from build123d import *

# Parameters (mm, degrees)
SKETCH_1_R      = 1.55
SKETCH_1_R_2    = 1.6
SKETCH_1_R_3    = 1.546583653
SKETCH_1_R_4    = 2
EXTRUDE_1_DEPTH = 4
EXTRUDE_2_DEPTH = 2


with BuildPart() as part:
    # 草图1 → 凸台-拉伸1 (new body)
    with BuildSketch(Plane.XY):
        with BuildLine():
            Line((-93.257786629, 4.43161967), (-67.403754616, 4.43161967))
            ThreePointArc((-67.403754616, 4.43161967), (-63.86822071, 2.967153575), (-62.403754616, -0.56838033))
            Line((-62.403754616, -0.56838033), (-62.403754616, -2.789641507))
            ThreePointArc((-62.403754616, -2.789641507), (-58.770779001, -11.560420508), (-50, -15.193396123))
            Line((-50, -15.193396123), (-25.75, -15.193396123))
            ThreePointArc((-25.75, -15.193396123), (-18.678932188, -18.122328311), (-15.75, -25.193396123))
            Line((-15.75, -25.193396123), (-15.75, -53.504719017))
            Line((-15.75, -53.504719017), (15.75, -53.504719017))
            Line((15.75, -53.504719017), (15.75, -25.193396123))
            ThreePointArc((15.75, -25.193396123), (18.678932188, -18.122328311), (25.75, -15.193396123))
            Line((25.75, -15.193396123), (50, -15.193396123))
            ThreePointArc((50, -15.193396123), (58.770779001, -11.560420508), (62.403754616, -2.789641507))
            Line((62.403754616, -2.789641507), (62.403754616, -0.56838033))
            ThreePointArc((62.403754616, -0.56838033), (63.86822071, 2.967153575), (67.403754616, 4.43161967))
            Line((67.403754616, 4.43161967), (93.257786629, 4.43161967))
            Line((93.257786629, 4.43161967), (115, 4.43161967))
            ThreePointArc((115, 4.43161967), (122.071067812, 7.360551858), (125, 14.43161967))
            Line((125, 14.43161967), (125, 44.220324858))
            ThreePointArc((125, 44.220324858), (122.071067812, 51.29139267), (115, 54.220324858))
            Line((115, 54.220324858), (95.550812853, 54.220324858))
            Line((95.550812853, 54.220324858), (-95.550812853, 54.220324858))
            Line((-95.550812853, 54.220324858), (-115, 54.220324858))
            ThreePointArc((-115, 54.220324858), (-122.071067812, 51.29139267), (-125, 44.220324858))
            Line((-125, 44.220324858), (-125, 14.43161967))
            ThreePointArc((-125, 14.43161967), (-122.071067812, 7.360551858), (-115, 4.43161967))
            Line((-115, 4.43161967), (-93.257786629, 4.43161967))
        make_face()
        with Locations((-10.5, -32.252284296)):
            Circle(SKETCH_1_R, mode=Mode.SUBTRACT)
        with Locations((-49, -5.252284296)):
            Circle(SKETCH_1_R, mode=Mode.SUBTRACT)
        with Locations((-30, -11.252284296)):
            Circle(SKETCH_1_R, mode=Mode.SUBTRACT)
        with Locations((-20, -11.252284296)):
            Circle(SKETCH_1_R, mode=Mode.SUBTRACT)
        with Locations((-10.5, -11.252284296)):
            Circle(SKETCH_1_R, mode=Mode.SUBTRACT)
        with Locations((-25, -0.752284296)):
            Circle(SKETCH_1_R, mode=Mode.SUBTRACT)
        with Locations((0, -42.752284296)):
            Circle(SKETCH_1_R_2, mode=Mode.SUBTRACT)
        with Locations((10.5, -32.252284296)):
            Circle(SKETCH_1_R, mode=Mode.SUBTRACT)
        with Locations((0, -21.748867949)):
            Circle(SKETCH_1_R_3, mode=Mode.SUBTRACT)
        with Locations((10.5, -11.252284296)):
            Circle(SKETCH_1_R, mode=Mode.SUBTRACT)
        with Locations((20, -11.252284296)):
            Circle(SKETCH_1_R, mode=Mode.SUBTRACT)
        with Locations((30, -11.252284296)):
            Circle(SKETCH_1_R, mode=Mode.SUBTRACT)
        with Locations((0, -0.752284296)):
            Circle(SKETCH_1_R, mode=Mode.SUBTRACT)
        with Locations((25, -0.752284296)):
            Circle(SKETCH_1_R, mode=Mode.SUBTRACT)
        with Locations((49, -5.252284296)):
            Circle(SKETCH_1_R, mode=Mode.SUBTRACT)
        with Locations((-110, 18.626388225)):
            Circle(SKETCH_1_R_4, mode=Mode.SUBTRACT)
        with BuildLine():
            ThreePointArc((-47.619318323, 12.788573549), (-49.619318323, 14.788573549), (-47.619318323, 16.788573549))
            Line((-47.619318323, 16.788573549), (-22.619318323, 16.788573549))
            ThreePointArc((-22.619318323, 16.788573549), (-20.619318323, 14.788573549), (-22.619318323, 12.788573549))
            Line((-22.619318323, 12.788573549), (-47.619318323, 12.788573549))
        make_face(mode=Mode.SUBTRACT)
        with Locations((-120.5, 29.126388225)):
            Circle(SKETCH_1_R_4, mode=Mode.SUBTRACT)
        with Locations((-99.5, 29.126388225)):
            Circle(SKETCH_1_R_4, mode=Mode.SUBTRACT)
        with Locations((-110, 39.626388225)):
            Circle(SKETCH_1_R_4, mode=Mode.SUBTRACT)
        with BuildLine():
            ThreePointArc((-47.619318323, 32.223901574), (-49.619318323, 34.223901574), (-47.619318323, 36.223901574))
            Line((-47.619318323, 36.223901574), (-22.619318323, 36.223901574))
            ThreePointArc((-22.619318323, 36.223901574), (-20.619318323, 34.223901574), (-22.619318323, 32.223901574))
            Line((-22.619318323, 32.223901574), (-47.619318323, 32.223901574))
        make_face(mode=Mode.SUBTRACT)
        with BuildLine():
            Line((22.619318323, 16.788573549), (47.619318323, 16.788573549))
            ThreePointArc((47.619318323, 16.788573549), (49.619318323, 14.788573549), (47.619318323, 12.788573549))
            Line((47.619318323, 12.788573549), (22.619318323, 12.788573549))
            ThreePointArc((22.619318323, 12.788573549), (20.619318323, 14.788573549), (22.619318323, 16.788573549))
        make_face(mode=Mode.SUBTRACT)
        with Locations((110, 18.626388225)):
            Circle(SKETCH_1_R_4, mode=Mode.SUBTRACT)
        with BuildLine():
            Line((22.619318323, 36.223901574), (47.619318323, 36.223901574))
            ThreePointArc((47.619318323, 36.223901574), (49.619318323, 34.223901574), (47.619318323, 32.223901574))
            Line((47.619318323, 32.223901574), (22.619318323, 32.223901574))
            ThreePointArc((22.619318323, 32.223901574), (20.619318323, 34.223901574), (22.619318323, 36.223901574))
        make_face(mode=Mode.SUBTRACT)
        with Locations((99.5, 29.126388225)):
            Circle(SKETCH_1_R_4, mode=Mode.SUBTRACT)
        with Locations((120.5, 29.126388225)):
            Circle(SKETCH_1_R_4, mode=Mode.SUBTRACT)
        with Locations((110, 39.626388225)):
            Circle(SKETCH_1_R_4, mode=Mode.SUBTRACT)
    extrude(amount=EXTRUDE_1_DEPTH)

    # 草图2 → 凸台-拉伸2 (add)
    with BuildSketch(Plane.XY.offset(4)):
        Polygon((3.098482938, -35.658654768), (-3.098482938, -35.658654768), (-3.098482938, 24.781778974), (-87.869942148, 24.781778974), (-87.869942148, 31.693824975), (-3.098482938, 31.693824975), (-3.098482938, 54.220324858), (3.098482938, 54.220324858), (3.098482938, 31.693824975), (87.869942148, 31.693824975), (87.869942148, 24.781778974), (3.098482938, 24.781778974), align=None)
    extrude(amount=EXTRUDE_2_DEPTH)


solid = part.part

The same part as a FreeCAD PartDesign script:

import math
import FreeCAD as App
import Part
import Sketcher


def add_polygon(sketch, points):
    """Adds a closed chain of lines whose ends are joined by coincident constraints."""
    first, n = sketch.GeometryCount, len(points)
    for a, b in zip(points, points[1:] + points[:1]):
        sketch.addGeometry(Part.LineSegment(App.Vector(*a, 0), App.Vector(*b, 0)), False)
    for i in range(n):
        sketch.addConstraint(Sketcher.Constraint("Coincident", first + i, 2, first + (i + 1) % n, 1))

doc = App.newDocument("Part")
body = doc.addObject("PartDesign::Body", "Body")

# Sketch on XY plane
sketch1 = body.newObject("Sketcher::SketchObject", "Sketch")
sketch1.AttachmentSupport = (doc.getObject("XY_Plane"), [""])
sketch1.MapMode = "FlatFace"
sketch1.addGeometry([
    Part.ArcOfCircle(Part.Circle(App.Vector(-67.4, -0.6, 0), App.Vector(0, 0, 1), 5), math.radians(0), math.radians(90)),  # 0
    Part.LineSegment(App.Vector(-62.4, -0.6, 0), App.Vector(-62.4, -2.8, 0)),  # 1
    Part.ArcOfCircle(Part.Circle(App.Vector(-50, -2.8, 0), App.Vector(0, 0, 1), 12.4), math.radians(-180), math.radians(-90)),  # 2
    Part.LineSegment(App.Vector(-50, -15.2, 0), App.Vector(-25.8, -15.2, 0)),  # 3
    Part.ArcOfCircle(Part.Circle(App.Vector(-25.8, -25.2, 0), App.Vector(0, 0, 1), 10), math.radians(0), math.radians(90)),  # 4
    Part.LineSegment(App.Vector(-15.8, -25.2, 0), App.Vector(-15.8, -53.5, 0)),  # 5
    Part.LineSegment(App.Vector(-15.8, -53.5, 0), App.Vector(15.8, -53.5, 0)),  # 6
    Part.LineSegment(App.Vector(15.8, -53.5, 0), App.Vector(15.8, -25.2, 0)),  # 7
    Part.ArcOfCircle(Part.Circle(App.Vector(25.8, -25.2, 0), App.Vector(0, 0, 1), 10), math.radians(90), math.radians(180)),  # 8
    Part.LineSegment(App.Vector(25.8, -15.2, 0), App.Vector(50, -15.2, 0)),  # 9
    Part.ArcOfCircle(Part.Circle(App.Vector(50, -2.8, 0), App.Vector(0, 0, 1), 12.4), math.radians(-90), math.radians(0)),  # 10
    Part.LineSegment(App.Vector(62.4, -2.8, 0), App.Vector(62.4, -0.6, 0)),  # 11
    Part.ArcOfCircle(Part.Circle(App.Vector(67.4, -0.6, 0), App.Vector(0, 0, 1), 5), math.radians(90), math.radians(180)),  # 12
    Part.LineSegment(App.Vector(67.4, 4.4, 0), App.Vector(115, 4.4, 0)),  # 13
    Part.ArcOfCircle(Part.Circle(App.Vector(115, 14.4, 0), App.Vector(0, 0, 1), 10), math.radians(-90), math.radians(0)),  # 14
    Part.LineSegment(App.Vector(125, 14.4, 0), App.Vector(125, 44.2, 0)),  # 15
    Part.ArcOfCircle(Part.Circle(App.Vector(115, 44.2, 0), App.Vector(0, 0, 1), 10), math.radians(0), math.radians(90)),  # 16
    Part.LineSegment(App.Vector(115, 54.2, 0), App.Vector(-115, 54.2, 0)),  # 17
    Part.ArcOfCircle(Part.Circle(App.Vector(-115, 44.2, 0), App.Vector(0, 0, 1), 10), math.radians(90), math.radians(180)),  # 18
    Part.LineSegment(App.Vector(-125, 44.2, 0), App.Vector(-125, 14.4, 0)),  # 19
    Part.ArcOfCircle(Part.Circle(App.Vector(-115, 14.4, 0), App.Vector(0, 0, 1), 10), math.radians(180), math.radians(270)),  # 20
    Part.LineSegment(App.Vector(-115, 4.4, 0), App.Vector(-67.4, 4.4, 0)),  # 21
    Part.Circle(App.Vector(-10.5, -32.3, 0), App.Vector(0, 0, 1), 1.6),  # 22
    Part.Circle(App.Vector(-49, -5.3, 0), App.Vector(0, 0, 1), 1.6),  # 23
    Part.Circle(App.Vector(-30, -11.3, 0), App.Vector(0, 0, 1), 1.6),  # 24
    Part.Circle(App.Vector(-20, -11.3, 0), App.Vector(0, 0, 1), 1.6),  # 25
    Part.Circle(App.Vector(-10.5, -11.3, 0), App.Vector(0, 0, 1), 1.6),  # 26
    Part.Circle(App.Vector(0, -42.8, 0), App.Vector(0, 0, 1), 1.6),  # 27
    Part.Circle(App.Vector(10.5, -32.3, 0), App.Vector(0, 0, 1), 1.6),  # 28
    Part.Circle(App.Vector(0, -21.7, 0), App.Vector(0, 0, 1), 1.5),  # 29
    Part.Circle(App.Vector(10.5, -11.3, 0), App.Vector(0, 0, 1), 1.6),  # 30
    Part.Circle(App.Vector(20, -11.3, 0), App.Vector(0, 0, 1), 1.6),  # 31
    Part.Circle(App.Vector(30, -11.3, 0), App.Vector(0, 0, 1), 1.6),  # 32
    Part.Circle(App.Vector(49, -5.3, 0), App.Vector(0, 0, 1), 1.6),  # 33
    Part.Circle(App.Vector(-110, 18.6, 0), App.Vector(0, 0, 1), 2),  # 34
    Part.Circle(App.Vector(-25, -0.8, 0), App.Vector(0, 0, 1), 1.6),  # 35
    Part.LineSegment(App.Vector(-22.6, 12.8, 0), App.Vector(-47.6, 12.8, 0)),  # 36
    Part.ArcOfCircle(Part.Circle(App.Vector(-47.6, 14.8, 0), App.Vector(0, 0, 1), 2), math.radians(90), math.radians(270)),  # 37
    Part.LineSegment(App.Vector(-47.6, 16.8, 0), App.Vector(-22.6, 16.8, 0)),  # 38
    Part.ArcOfCircle(Part.Circle(App.Vector(-22.6, 14.8, 0), App.Vector(0, 0, 1), 2), math.radians(-90), math.radians(90)),  # 39
    Part.Circle(App.Vector(-120.5, 29.1, 0), App.Vector(0, 0, 1), 2),  # 40
    Part.Circle(App.Vector(-99.5, 29.1, 0), App.Vector(0, 0, 1), 2),  # 41
    Part.Circle(App.Vector(-110, 39.6, 0), App.Vector(0, 0, 1), 2),  # 42
    Part.LineSegment(App.Vector(-22.6, 32.2, 0), App.Vector(-47.6, 32.2, 0)),  # 43
    Part.ArcOfCircle(Part.Circle(App.Vector(-47.6, 34.2, 0), App.Vector(0, 0, 1), 2), math.radians(90), math.radians(270)),  # 44
    Part.LineSegment(App.Vector(-47.6, 36.2, 0), App.Vector(-22.6, 36.2, 0)),  # 45
    Part.ArcOfCircle(Part.Circle(App.Vector(-22.6, 34.2, 0), App.Vector(0, 0, 1), 2), math.radians(-90), math.radians(90)),  # 46
    Part.Circle(App.Vector(0, -0.8, 0), App.Vector(0, 0, 1), 1.6),  # 47
    Part.Circle(App.Vector(25, -0.8, 0), App.Vector(0, 0, 1), 1.6),  # 48
    Part.ArcOfCircle(Part.Circle(App.Vector(22.6, 14.8, 0), App.Vector(0, 0, 1), 2), math.radians(90), math.radians(270)),  # 49
    Part.LineSegment(App.Vector(22.6, 16.8, 0), App.Vector(47.6, 16.8, 0)),  # 50
    Part.ArcOfCircle(Part.Circle(App.Vector(47.6, 14.8, 0), App.Vector(0, 0, 1), 2), math.radians(-90), math.radians(90)),  # 51
    Part.LineSegment(App.Vector(47.6, 12.8, 0), App.Vector(22.6, 12.8, 0)),  # 52
    Part.Circle(App.Vector(110, 18.6, 0), App.Vector(0, 0, 1), 2),  # 53
    Part.ArcOfCircle(Part.Circle(App.Vector(22.6, 34.2, 0), App.Vector(0, 0, 1), 2), math.radians(90), math.radians(270)),  # 54
    Part.LineSegment(App.Vector(22.6, 36.2, 0), App.Vector(47.6, 36.2, 0)),  # 55
    Part.ArcOfCircle(Part.Circle(App.Vector(47.6, 34.2, 0), App.Vector(0, 0, 1), 2), math.radians(-90), math.radians(90)),  # 56
    Part.LineSegment(App.Vector(47.6, 32.2, 0), App.Vector(22.6, 32.2, 0)),  # 57
    Part.Circle(App.Vector(99.5, 29.1, 0), App.Vector(0, 0, 1), 2),  # 58
    Part.Circle(App.Vector(120.5, 29.1, 0), App.Vector(0, 0, 1), 2),  # 59
    Part.Circle(App.Vector(110, 39.6, 0), App.Vector(0, 0, 1), 2),  # 60
], False)
sketch1.addConstraint([
    Sketcher.Constraint("Tangent", 0, 1, 1, 1),
    Sketcher.Constraint("Tangent", 1, 2, 2, 1),
    Sketcher.Constraint("Tangent", 2, 2, 3, 1),
    Sketcher.Constraint("Tangent", 3, 2, 4, 2),
    Sketcher.Constraint("Tangent", 4, 1, 5, 1),
    Sketcher.Constraint("Coincident", 5, 2, 6, 1),
    Sketcher.Constraint("Coincident", 6, 2, 7, 1),
    Sketcher.Constraint("Tangent", 7, 2, 8, 2),
    Sketcher.Constraint("Tangent", 8, 1, 9, 1),
    Sketcher.Constraint("Tangent", 9, 2, 10, 1),
    Sketcher.Constraint("Tangent", 10, 2, 11, 1),
    Sketcher.Constraint("Tangent", 11, 2, 12, 2),
    Sketcher.Constraint("Tangent", 12, 1, 13, 1),
    Sketcher.Constraint("Tangent", 13, 2, 14, 1),
    Sketcher.Constraint("Tangent", 14, 2, 15, 1),
    Sketcher.Constraint("Tangent", 15, 2, 16, 1),
    Sketcher.Constraint("Tangent", 16, 2, 17, 1),
    Sketcher.Constraint("Tangent", 17, 2, 18, 1),
    Sketcher.Constraint("Tangent", 18, 2, 19, 1),
    Sketcher.Constraint("Tangent", 19, 2, 20, 1),
    Sketcher.Constraint("Tangent", 20, 2, 21, 1),
    Sketcher.Constraint("Tangent", 21, 2, 0, 2),
    Sketcher.Constraint("Tangent", 36, 2, 37, 2),
    Sketcher.Constraint("Tangent", 37, 1, 38, 1),
    Sketcher.Constraint("Tangent", 38, 2, 39, 2),
    Sketcher.Constraint("Tangent", 39, 1, 36, 1),
    Sketcher.Constraint("Tangent", 43, 2, 44, 2),
    Sketcher.Constraint("Tangent", 44, 1, 45, 1),
    Sketcher.Constraint("Tangent", 45, 2, 46, 2),
    Sketcher.Constraint("Tangent", 46, 1, 43, 1),
    Sketcher.Constraint("Tangent", 49, 1, 50, 1),
    Sketcher.Constraint("Tangent", 50, 2, 51, 2),
    Sketcher.Constraint("Tangent", 51, 1, 52, 1),
    Sketcher.Constraint("Tangent", 52, 2, 49, 2),
    Sketcher.Constraint("Tangent", 54, 1, 55, 1),
    Sketcher.Constraint("Tangent", 55, 2, 56, 2),
    Sketcher.Constraint("Tangent", 56, 1, 57, 1),
    Sketcher.Constraint("Tangent", 57, 2, 54, 2),
    Sketcher.Constraint("Vertical", 1),
    Sketcher.Constraint("Horizontal", 3),
    Sketcher.Constraint("Vertical", 5),
    Sketcher.Constraint("Horizontal", 6),
    Sketcher.Constraint("Vertical", 7),
    Sketcher.Constraint("Horizontal", 9),
    Sketcher.Constraint("Vertical", 11),
    Sketcher.Constraint("Horizontal", 13),
    Sketcher.Constraint("Vertical", 15),
    Sketcher.Constraint("Horizontal", 17),
    Sketcher.Constraint("Vertical", 19),
    Sketcher.Constraint("Horizontal", 21),
    Sketcher.Constraint("Horizontal", 36),
    Sketcher.Constraint("Horizontal", 38),
    Sketcher.Constraint("Horizontal", 43),
    Sketcher.Constraint("Horizontal", 45),
    Sketcher.Constraint("Horizontal", 50),
    Sketcher.Constraint("Horizontal", 52),
    Sketcher.Constraint("Horizontal", 55),
    Sketcher.Constraint("Horizontal", 57),
    Sketcher.Constraint("Equal", 4, 8),
    Sketcher.Constraint("Equal", 2, 10),
    Sketcher.Constraint("Equal", 0, 12),
    Sketcher.Constraint("Equal", 8, 14),
    Sketcher.Constraint("Equal", 14, 16),
    Sketcher.Constraint("Equal", 16, 18),
    Sketcher.Constraint("Equal", 18, 20),
    Sketcher.Constraint("Equal", 22, 23),
    Sketcher.Constraint("Equal", 23, 24),
    Sketcher.Constraint("Equal", 24, 25),
    Sketcher.Constraint("Equal", 25, 26),
    Sketcher.Constraint("Equal", 26, 28),
    Sketcher.Constraint("Equal", 28, 30),
    Sketcher.Constraint("Equal", 30, 31),
    Sketcher.Constraint("Equal", 31, 32),
    Sketcher.Constraint("Equal", 32, 33),
    Sketcher.Constraint("Equal", 33, 35),
    Sketcher.Constraint("Equal", 34, 37),
    Sketcher.Constraint("Equal", 39, 40),
    Sketcher.Constraint("Equal", 40, 41),
    Sketcher.Constraint("Equal", 41, 42),
    Sketcher.Constraint("Equal", 42, 44),
    Sketcher.Constraint("Equal", 35, 47),
    Sketcher.Constraint("Equal", 47, 48),
    Sketcher.Constraint("Equal", 46, 49),
    Sketcher.Constraint("Equal", 51, 53),
    Sketcher.Constraint("Equal", 53, 54),
    Sketcher.Constraint("Equal", 56, 58),
    Sketcher.Constraint("Equal", 58, 59),
    Sketcher.Constraint("Equal", 59, 60),
    Sketcher.Constraint("Symmetric", 4, 3, 8, 3, -2),
    Sketcher.Constraint("Symmetric", 0, 3, 12, 3, -2),
    Sketcher.Constraint("Symmetric", 22, 3, 28, 3, -2),
    Sketcher.Constraint("Symmetric", 26, 3, 30, 3, -2),
    Sketcher.Constraint("Symmetric", 25, 3, 31, 3, -2),
    Sketcher.Constraint("Symmetric", 24, 3, 32, 3, -2),
    Sketcher.Constraint("Symmetric", 23, 3, 33, 3, -2),
    Sketcher.Constraint("Symmetric", 35, 3, 48, 3, -2),
    Sketcher.Constraint("Symmetric", 39, 3, 49, 3, -2),
    Sketcher.Constraint("Symmetric", 34, 3, 53, 3, -2),
    Sketcher.Constraint("Symmetric", 46, 3, 54, 3, -2),
    Sketcher.Constraint("Symmetric", 41, 3, 58, 3, -2),
    Sketcher.Constraint("Symmetric", 40, 3, 59, 3, -2),
    Sketcher.Constraint("Symmetric", 42, 3, 60, 3, -2),
    Sketcher.Constraint("PointOnObject", 27, 3, -2),
    Sketcher.Constraint("PointOnObject", 29, 3, -2),
    Sketcher.Constraint("PointOnObject", 47, 3, -2),
    Sketcher.Constraint("Horizontal", 24, 3, 25, 3),
    Sketcher.Constraint("Horizontal", 25, 3, 26, 3),
    Sketcher.Constraint("Horizontal", 40, 3, 41, 3),
    Sketcher.Constraint("Horizontal", 35, 3, 47, 3),
    Sketcher.Constraint("Vertical", 22, 3, 26, 3),
    Sketcher.Constraint("Vertical", 34, 3, 42, 3),
    Sketcher.Constraint("Vertical", 37, 3, 44, 3),
    Sketcher.Constraint("Vertical", 39, 3, 46, 3),
    Sketcher.Constraint("Vertical", 51, 3, 56, 3),
    Sketcher.Constraint("Equal", 13, 21),
    Sketcher.Constraint("Equal", 45, 50),
    Sketcher.Constraint("Diameter", 34, 4.0),
    Sketcher.Constraint("Radius", 0, 5.0),
    Sketcher.Constraint("Radius", 4, 10.0),
    Sketcher.Constraint("Diameter", 22, 3.1),
    Sketcher.Constraint("Diameter", 27, 3.2),
    Sketcher.Constraint("DistanceX", 17, 2, 17, 1, 230.0),
    Sketcher.Constraint("DistanceX", 36, 2, 36, 1, 25.0),
    Sketcher.Constraint("DistanceX", 6, 1, 6, 2, 31.5),
    Sketcher.Constraint("DistanceX", 2, 3, -1, 1, 50.0),
    Sketcher.Constraint("DistanceX", 23, 3, -1, 1, 49.0),
    Sketcher.Constraint("DistanceX", 24, 3, -1, 1, 30.0),
    Sketcher.Constraint("DistanceX", 25, 3, -1, 1, 20.0),
    Sketcher.Constraint("DistanceX", 34, 3, -1, 1, 110.0),
    Sketcher.Constraint("DistanceX", 35, 3, -1, 1, 25.0),
    Sketcher.Constraint("DistanceX", 22, 3, -1, 1, 10.5),
    Sketcher.Constraint("DistanceX", 40, 3, -1, 1, 120.5),
    Sketcher.Constraint("DistanceX", 41, 3, -1, 1, 99.5),
    Sketcher.Constraint("Diameter", 29, 3.093167),
    Sketcher.Constraint("Radius", 2, 12.403755),
    Sketcher.Constraint("DistanceY", 1, 2, 1, 1, 2.221261),
    Sketcher.Constraint("DistanceY", -1, 1, 44, 3, 34.223902),
    Sketcher.Constraint("DistanceY", 5, 2, 5, 1, 28.311323),
    Sketcher.Constraint("DistanceY", 15, 1, 15, 2, 29.788705),
    Sketcher.Constraint("DistanceY", 0, 3, -1, 1, 0.56838),
    Sketcher.Constraint("DistanceY", -1, 1, 34, 3, 18.626388),
    Sketcher.Constraint("DistanceX", 37, 3, -1, 1, 47.619318),
    Sketcher.Constraint("DistanceY", -1, 1, 40, 3, 29.126388),
    Sketcher.Constraint("DistanceY", -1, 1, 42, 3, 39.626388),
    Sketcher.Constraint("DistanceY", 22, 3, -1, 1, 32.252284),
    Sketcher.Constraint("DistanceY", 23, 3, -1, 1, 5.252284),
    Sketcher.Constraint("DistanceY", 24, 3, -1, 1, 11.252284),
    Sketcher.Constraint("DistanceY", 27, 3, -1, 1, 42.752284),
    Sketcher.Constraint("DistanceY", 29, 3, -1, 1, 21.748868),
    Sketcher.Constraint("DistanceY", 35, 3, -1, 1, 0.752284),
    Sketcher.Constraint("DistanceY", -1, 1, 37, 3, 14.788574),
])
pad1 = body.newObject("PartDesign::Pad", "Pad")
pad1.Profile = sketch1
pad1.Length = 4

# Sketch on XY plane
sketch2 = body.newObject("Sketcher::SketchObject", "Sketch001")
sketch2.AttachmentSupport = (doc.getObject("XY_Plane"), [""])
sketch2.MapMode = "FlatFace"
sketch2.AttachmentOffset = App.Placement(App.Vector(0, 0, 4), App.Rotation())
add_polygon(sketch2, [(-3, -36), (3, -36), (3, 25), (88, 25), (88, 32), (3, 32), (3, 54), (-3, 54), (-3, 32), (-88, 32), (-88, 25), (-3, 25)])  # lines 0-11
sketch2.addConstraint([
    Sketcher.Constraint("Horizontal", 0),
    Sketcher.Constraint("Vertical", 1),
    Sketcher.Constraint("Horizontal", 2),
    Sketcher.Constraint("Vertical", 3),
    Sketcher.Constraint("Horizontal", 4),
    Sketcher.Constraint("Vertical", 5),
    Sketcher.Constraint("Horizontal", 6),
    Sketcher.Constraint("Vertical", 7),
    Sketcher.Constraint("Horizontal", 8),
    Sketcher.Constraint("Vertical", 9),
    Sketcher.Constraint("Horizontal", 10),
    Sketcher.Constraint("Vertical", 11),
    Sketcher.Constraint("Symmetric", 4, 2, 7, 2, -2),
    Sketcher.Constraint("Symmetric", 2, 2, 9, 2, -2),
    Sketcher.Constraint("Vertical", 1, 2, 4, 2),
    Sketcher.Constraint("Vertical", 7, 2, 10, 2),
    Sketcher.Constraint("DistanceY", 5, 1, 5, 2, 22.5265),
    Sketcher.Constraint("DistanceX", 2, 1, 2, 2, 84.771459),
    Sketcher.Constraint("DistanceX", 0, 1, 0, 2, 6.196966),
    Sketcher.Constraint("DistanceY", 1, 1, 1, 2, 60.440434),
    Sketcher.Constraint("DistanceY", 3, 1, 3, 2, 6.912046),
    Sketcher.Constraint("DistanceY", -1, 1, 1, 2, 24.781779),
])
pad2 = body.newObject("PartDesign::Pad", "Pad001")
pad2.Profile = sketch2
pad2.Length = 2

doc.recompute()
